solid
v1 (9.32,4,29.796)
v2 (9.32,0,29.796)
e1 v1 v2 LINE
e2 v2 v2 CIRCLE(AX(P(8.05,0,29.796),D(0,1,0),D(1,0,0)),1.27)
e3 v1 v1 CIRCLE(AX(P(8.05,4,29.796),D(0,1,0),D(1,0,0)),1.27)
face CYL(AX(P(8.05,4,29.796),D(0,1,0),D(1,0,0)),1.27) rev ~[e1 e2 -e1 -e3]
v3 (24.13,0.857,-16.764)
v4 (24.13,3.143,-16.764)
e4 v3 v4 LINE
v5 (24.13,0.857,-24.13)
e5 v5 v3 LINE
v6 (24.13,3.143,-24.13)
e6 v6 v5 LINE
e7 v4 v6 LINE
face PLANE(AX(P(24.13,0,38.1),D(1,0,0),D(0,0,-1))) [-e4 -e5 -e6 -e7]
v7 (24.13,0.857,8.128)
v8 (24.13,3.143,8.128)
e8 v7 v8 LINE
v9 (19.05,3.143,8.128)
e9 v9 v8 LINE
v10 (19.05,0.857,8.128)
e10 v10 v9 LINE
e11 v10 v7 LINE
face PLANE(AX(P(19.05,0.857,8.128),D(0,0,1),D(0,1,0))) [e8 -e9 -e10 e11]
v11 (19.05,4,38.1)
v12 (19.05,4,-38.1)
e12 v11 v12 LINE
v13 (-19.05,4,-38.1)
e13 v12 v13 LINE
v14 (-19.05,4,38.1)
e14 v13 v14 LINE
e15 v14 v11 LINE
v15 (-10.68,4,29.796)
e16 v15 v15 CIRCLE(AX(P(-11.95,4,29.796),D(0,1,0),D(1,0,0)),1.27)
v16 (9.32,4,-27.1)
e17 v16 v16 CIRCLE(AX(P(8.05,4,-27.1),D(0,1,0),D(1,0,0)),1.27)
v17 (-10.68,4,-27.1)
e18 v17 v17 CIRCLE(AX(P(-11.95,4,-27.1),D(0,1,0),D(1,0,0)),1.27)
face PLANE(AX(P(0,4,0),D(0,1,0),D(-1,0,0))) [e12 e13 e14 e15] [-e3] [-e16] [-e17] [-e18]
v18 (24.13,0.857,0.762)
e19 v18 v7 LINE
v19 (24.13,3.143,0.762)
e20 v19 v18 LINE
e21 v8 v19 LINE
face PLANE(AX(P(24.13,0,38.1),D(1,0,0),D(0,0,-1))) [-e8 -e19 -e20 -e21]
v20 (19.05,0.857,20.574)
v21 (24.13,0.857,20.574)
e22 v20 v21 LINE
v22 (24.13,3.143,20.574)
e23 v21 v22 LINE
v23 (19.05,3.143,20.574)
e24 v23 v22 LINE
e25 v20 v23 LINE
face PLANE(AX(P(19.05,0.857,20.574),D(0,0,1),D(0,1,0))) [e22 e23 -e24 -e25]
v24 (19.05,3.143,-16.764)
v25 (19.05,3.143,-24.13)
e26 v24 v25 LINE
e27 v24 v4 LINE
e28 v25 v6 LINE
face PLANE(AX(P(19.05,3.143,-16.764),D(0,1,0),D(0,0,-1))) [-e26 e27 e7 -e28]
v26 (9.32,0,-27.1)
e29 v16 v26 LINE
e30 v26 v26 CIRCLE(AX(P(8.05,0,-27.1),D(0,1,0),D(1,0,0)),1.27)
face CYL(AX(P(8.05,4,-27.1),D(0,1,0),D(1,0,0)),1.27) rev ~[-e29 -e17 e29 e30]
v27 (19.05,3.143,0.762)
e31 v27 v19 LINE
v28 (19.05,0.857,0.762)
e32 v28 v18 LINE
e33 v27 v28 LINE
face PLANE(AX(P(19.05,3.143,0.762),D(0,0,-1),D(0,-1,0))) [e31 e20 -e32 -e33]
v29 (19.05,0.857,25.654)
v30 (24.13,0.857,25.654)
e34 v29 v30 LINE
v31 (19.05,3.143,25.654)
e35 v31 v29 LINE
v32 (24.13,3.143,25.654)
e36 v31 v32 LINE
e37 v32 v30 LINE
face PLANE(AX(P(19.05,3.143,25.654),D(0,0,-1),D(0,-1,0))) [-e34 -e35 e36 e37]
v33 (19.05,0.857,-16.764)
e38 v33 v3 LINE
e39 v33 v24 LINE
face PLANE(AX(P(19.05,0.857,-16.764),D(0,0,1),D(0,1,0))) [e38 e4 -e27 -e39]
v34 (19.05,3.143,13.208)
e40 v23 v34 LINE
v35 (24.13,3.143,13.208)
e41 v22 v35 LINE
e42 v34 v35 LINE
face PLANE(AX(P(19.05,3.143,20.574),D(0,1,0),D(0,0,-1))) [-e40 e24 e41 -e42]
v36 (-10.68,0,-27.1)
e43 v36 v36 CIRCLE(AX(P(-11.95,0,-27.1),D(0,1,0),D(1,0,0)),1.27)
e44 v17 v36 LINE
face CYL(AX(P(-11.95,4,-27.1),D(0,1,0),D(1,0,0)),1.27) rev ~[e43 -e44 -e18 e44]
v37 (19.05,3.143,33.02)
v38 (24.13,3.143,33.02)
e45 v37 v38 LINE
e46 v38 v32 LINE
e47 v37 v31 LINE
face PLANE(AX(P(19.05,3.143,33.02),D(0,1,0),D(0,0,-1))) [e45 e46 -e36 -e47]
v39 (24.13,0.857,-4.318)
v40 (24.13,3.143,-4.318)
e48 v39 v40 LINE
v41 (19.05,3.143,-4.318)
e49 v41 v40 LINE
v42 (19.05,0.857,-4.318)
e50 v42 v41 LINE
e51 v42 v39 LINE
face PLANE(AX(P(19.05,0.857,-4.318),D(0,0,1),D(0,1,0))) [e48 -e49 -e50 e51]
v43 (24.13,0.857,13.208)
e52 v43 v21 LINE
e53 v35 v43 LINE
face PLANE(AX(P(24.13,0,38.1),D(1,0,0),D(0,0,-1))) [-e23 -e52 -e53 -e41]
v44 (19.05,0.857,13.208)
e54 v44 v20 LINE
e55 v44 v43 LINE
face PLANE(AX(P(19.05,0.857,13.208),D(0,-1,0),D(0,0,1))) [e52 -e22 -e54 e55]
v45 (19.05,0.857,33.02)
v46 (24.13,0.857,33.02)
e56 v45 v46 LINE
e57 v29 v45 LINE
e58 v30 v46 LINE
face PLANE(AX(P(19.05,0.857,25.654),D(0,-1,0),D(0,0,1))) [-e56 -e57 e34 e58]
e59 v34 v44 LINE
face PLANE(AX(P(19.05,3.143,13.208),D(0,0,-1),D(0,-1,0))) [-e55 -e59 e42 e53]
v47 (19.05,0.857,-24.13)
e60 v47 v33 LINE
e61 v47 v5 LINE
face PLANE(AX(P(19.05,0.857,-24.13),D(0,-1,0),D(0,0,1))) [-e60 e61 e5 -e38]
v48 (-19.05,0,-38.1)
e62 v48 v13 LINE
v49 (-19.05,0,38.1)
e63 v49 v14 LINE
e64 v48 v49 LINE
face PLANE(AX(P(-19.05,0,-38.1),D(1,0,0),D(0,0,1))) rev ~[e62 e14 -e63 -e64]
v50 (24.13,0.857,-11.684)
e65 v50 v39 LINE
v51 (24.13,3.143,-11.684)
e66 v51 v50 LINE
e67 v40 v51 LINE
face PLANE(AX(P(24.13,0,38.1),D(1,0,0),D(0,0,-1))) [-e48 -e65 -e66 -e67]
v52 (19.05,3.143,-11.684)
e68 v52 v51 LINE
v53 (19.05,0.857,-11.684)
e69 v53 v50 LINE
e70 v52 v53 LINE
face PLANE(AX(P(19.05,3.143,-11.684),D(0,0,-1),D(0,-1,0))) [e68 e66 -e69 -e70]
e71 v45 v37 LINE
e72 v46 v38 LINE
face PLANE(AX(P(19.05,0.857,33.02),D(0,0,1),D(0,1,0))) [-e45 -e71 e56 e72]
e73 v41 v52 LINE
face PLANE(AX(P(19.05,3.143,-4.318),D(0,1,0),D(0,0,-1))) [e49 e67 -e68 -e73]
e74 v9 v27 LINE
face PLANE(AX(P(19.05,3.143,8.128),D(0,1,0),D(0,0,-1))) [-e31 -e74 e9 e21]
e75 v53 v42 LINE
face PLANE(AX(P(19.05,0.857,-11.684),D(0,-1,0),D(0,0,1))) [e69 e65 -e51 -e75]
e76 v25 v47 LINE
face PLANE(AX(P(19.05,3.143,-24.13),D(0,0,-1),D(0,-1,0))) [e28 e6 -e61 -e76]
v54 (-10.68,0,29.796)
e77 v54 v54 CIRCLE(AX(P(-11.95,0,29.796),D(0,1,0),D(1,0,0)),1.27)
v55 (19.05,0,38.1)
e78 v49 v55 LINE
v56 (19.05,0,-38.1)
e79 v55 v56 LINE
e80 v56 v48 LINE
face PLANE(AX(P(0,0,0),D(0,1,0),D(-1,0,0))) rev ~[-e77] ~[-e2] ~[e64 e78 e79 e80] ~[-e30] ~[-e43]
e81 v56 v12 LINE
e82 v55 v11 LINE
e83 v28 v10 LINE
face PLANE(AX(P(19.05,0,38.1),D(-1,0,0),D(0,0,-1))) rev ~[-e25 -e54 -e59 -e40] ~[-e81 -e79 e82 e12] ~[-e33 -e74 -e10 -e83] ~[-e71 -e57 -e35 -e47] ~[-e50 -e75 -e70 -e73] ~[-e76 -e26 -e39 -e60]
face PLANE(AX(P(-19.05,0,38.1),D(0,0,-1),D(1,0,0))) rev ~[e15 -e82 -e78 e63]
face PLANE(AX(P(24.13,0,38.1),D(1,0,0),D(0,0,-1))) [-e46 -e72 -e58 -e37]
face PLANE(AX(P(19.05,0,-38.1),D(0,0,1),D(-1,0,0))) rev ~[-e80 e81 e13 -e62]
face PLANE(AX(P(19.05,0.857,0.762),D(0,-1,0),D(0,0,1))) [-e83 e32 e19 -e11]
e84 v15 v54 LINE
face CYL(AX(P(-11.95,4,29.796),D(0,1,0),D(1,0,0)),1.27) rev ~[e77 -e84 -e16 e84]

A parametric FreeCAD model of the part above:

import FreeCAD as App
import Part
import Sketcher
Q = App.Units.Quantity

doc = App.newDocument("Part")
params = doc.addObject("Spreadsheet::Sheet", "Params")
for row, (alias, value) in enumerate([
    ("sketch1_height", "3 in"),
    ("sketch1_width", "1.5 in"),
    ("pad1_length", "4 mm"),
    ("sketch2_width", "0.09 in"),
    ("sketch2_height", "0.29 in"),
    ("pad2_length", "0.2 in"),
    ("sketch3_diameter", "0.1 in"),
    ("pocket1_length", "0.282 in"),
], start=1):
    params.set(f"A{row}", alias)
    params.set(f"B{row}", "=" + value)
    params.setAlias(f"B{row}", alias)

body = doc.addObject("PartDesign::Body", "Body")

sketch1 = body.newObject("Sketcher::SketchObject", "Sketch")
sketch1.AttachmentSupport = (doc.getObject("XZ_Plane"), [""])
sketch1.MapMode = "FlatFace"
sketch1.addGeometry([
    Part.LineSegment(App.Vector(-19, -38, 0), App.Vector(-19, 38, 0)),
    Part.LineSegment(App.Vector(-19, 38, 0), App.Vector(19, 38, 0)),
    Part.LineSegment(App.Vector(19, 38, 0), App.Vector(19, -38, 0)),
    Part.LineSegment(App.Vector(19, -38, 0), App.Vector(-19, -38, 0)),
], False)
sketch1.addConstraint([
    Sketcher.Constraint("Coincident", 0, 2, 1, 1),
    Sketcher.Constraint("Coincident", 1, 2, 2, 1),
    Sketcher.Constraint("Coincident", 2, 2, 3, 1),
    Sketcher.Constraint("Coincident", 3, 2, 0, 1),
    Sketcher.Constraint("Vertical", 0),
    Sketcher.Constraint("Horizontal", 1),
    Sketcher.Constraint("Vertical", 2),
    Sketcher.Constraint("Horizontal", 3),
    Sketcher.Constraint("Symmetric", 0, 2, 2, 2, -1, 1),
    Sketcher.Constraint("DistanceY", 0, 1, 0, 2, Q("3 in")),
    Sketcher.Constraint("DistanceX", 1, 1, 1, 2, Q("1.5 in")),
])
sketch1.setExpression("Constraints[9]", "Params.sketch1_height")
sketch1.setExpression("Constraints[10]", "Params.sketch1_width")
pad1 = body.newObject("PartDesign::Pad", "Pad")
pad1.Profile = sketch1
pad1.setExpression("Length", "Params.pad1_length")
pad1.Reversed = True

sketch2 = body.newObject("Sketcher::SketchObject", "Sketch001")
sketch2.AttachmentSupport = (doc.getObject("YZ_Plane"), [""])
sketch2.MapMode = "FlatFace"
sketch2.AttachmentOffset = App.Placement(App.Vector(0, 0, 0.75 * 25.4), App.Rotation())
sketch2.addGeometry([
    Part.LineSegment(App.Vector(3.1, 25.7, 0), App.Vector(3.1, 33, 0)),
    Part.LineSegment(App.Vector(3.1, 33, 0), App.Vector(0.9, 33, 0)),
    Part.LineSegment(App.Vector(0.9, 33, 0), App.Vector(0.9, 25.7, 0)),
    Part.LineSegment(App.Vector(0.9, 25.7, 0), App.Vector(3.1, 25.7, 0)),
    Part.LineSegment(App.Vector(3.1, 13.2, 0), App.Vector(3.1, 20.6, 0)),
    Part.LineSegment(App.Vector(3.1, 20.6, 0), App.Vector(0.9, 20.6, 0)),
    Part.LineSegment(App.Vector(0.9, 20.6, 0), App.Vector(0.9, 13.2, 0)),
    Part.LineSegment(App.Vector(0.9, 13.2, 0), App.Vector(3.1, 13.2, 0)),
    Part.LineSegment(App.Vector(3.1, 0.8, 0), App.Vector(3.1, 8.1, 0)),
    Part.LineSegment(App.Vector(3.1, 8.1, 0), App.Vector(0.9, 8.1, 0)),
    Part.LineSegment(App.Vector(0.9, 8.1, 0), App.Vector(0.9, 0.8, 0)),
    Part.LineSegment(App.Vector(0.9, 0.8, 0), App.Vector(3.1, 0.8, 0)),
    Part.LineSegment(App.Vector(3.1, -11.7, 0), App.Vector(3.1, -4.3, 0)),
    Part.LineSegment(App.Vector(3.1, -4.3, 0), App.Vector(0.9, -4.3, 0)),
    Part.LineSegment(App.Vector(0.9, -4.3, 0), App.Vector(0.9, -11.7, 0)),
    Part.LineSegment(App.Vector(0.9, -11.7, 0), App.Vector(3.1, -11.7, 0)),
    Part.LineSegment(App.Vector(3.1, -24.1, 0), App.Vector(3.1, -16.8, 0)),
    Part.LineSegment(App.Vector(3.1, -16.8, 0), App.Vector(0.9, -16.8, 0)),
    Part.LineSegment(App.Vector(0.9, -16.8, 0), App.Vector(0.9, -24.1, 0)),
    Part.LineSegment(App.Vector(0.9, -24.1, 0), App.Vector(3.1, -24.1, 0)),
], False)
sketch2.addConstraint([
    Sketcher.Constraint("Coincident", 0, 2, 1, 1),
    Sketcher.Constraint("Coincident", 1, 2, 2, 1),
    Sketcher.Constraint("Coincident", 2, 2, 3, 1),
    Sketcher.Constraint("Coincident", 3, 2, 0, 1),
    Sketcher.Constraint("Coincident", 4, 2, 5, 1),
    Sketcher.Constraint("Coincident", 5, 2, 6, 1),
    Sketcher.Constraint("Coincident", 6, 2, 7, 1),
    Sketcher.Constraint("Coincident", 7, 2, 4, 1),
    Sketcher.Constraint("Coincident", 8, 2, 9, 1),
    Sketcher.Constraint("Coincident", 9, 2, 10, 1),
    Sketcher.Constraint("Coincident", 10, 2, 11, 1),
    Sketcher.Constraint("Coincident", 11, 2, 8, 1),
    Sketcher.Constraint("Coincident", 12, 2, 13, 1),
    Sketcher.Constraint("Coincident", 13, 2, 14, 1),
    Sketcher.Constraint("Coincident", 14, 2, 15, 1),
    Sketcher.Constraint("Coincident", 15, 2, 12, 1),
    Sketcher.Constraint("Coincident", 16, 2, 17, 1),
    Sketcher.Constraint("Coincident", 17, 2, 18, 1),
    Sketcher.Constraint("Coincident", 18, 2, 19, 1),
    Sketcher.Constraint("Coincident", 19, 2, 16, 1),
    Sketcher.Constraint("Vertical", 0),
    Sketcher.Constraint("Horizontal", 1),
    Sketcher.Constraint("Vertical", 2),
    Sketcher.Constraint("Horizontal", 3),
    Sketcher.Constraint("Vertical", 4),
    Sketcher.Constraint("Horizontal", 5),
    Sketcher.Constraint("Vertical", 6),
    Sketcher.Constraint("Horizontal", 7),
    Sketcher.Constraint("Vertical", 8),
    Sketcher.Constraint("Horizontal", 9),
    Sketcher.Constraint("Vertical", 10),
    Sketcher.Constraint("Horizontal", 11),
    Sketcher.Constraint("Vertical", 12),
    Sketcher.Constraint("Horizontal", 13),
    Sketcher.Constraint("Vertical", 14),
    Sketcher.Constraint("Horizontal", 15),
    Sketcher.Constraint("Vertical", 16),
    Sketcher.Constraint("Horizontal", 17),
    Sketcher.Constraint("Vertical", 18),
    Sketcher.Constraint("Horizontal", 19),
    Sketcher.Constraint("Vertical", 3, 2, 4, 2),
    Sketcher.Constraint("Vertical", 2, 2, 5, 2),
    Sketcher.Constraint("Vertical", 7, 2, 8, 2),
    Sketcher.Constraint("Vertical", 6, 2, 9, 2),
    Sketcher.Constraint("Vertical", 11, 2, 12, 2),
    Sketcher.Constraint("Vertical", 10, 2, 13, 2),
    Sketcher.Constraint("Vertical", 15, 2, 16, 2),
    Sketcher.Constraint("Vertical", 14, 2, 17, 2),
    Sketcher.Constraint("Equal", 2, 4),
    Sketcher.Constraint("Equal", 6, 8),
    Sketcher.Constraint("Equal", 10, 12),
    Sketcher.Constraint("Equal", 14, 16),
    Sketcher.Constraint("DistanceX", 1, 2, 1, 1, Q("0.09 in")),
    Sketcher.Constraint("DistanceY", 0, 1, 0, 2, Q("0.29 in")),
    Sketcher.Constraint("DistanceY", 4, 2, 3, 2, Q("0.2 in")),
    Sketcher.Constraint("DistanceY", 8, 2, 7, 2, Q("0.2 in")),
    Sketcher.Constraint("DistanceY", 12, 2, 11, 2, Q("0.2 in")),
    Sketcher.Constraint("DistanceY", 16, 2, 15, 2, Q("0.2 in")),
    Sketcher.Constraint("DistanceY", -1, 1, 0, 2, Q("1.3 in")),
    Sketcher.Constraint("DistanceX", -1, 1, 0, 2, 3.143),
])
sketch2.setExpression("Constraints[52]", "Params.sketch2_width")
sketch2.setExpression("Constraints[53]", "Params.sketch2_height")
pad2 = body.newObject("PartDesign::Pad", "Pad001")
pad2.Profile = sketch2
pad2.setExpression("Length", "Params.pad2_length")

sketch3 = body.newObject("Sketcher::SketchObject", "Sketch002")
sketch3.AttachmentSupport = (doc.getObject("XZ_Plane"), [""])
sketch3.MapMode = "FlatFace"
sketch3.AttachmentOffset = App.Placement(App.Vector(0, 0, -4), App.Rotation())
sketch3.addGeometry([
    Part.Circle(App.Vector(8.1, -27.1, 0), App.Vector(0, 0, 1), 1.3),
    Part.Circle(App.Vector(-11.9, -27.1, 0), App.Vector(0, 0, 1), 1.3),
    Part.Circle(App.Vector(8.1, 29.8, 0), App.Vector(0, 0, 1), 1.3),
    Part.Circle(App.Vector(-11.9, 29.8, 0), App.Vector(0, 0, 1), 1.3),
], False)
sketch3.addConstraint([
    Sketcher.Constraint("Equal", 0, 1),
    Sketcher.Constraint("Equal", 1, 2),
    Sketcher.Constraint("Equal", 2, 3),
    Sketcher.Constraint("Horizontal", 0, 3, 1, 3),
    Sketcher.Constraint("Horizontal", 2, 3, 3, 3),
    Sketcher.Constraint("Vertical", 0, 3, 2, 3),
    Sketcher.Constraint("Vertical", 1, 3, 3, 3),
    Sketcher.Constraint("Diameter", 0, Q("0.1 in")),
    Sketcher.Constraint("DistanceY", 0, 3, 2, 3, Q("2.24 in")),
    Sketcher.Constraint("DistanceX", 1, 3, 0, 3, Q("0.7874 in")),
    Sketcher.Constraint("DistanceX", -1, 1, 0, 3, 8.05),
    Sketcher.Constraint("DistanceY", 0, 3, -1, 1, 27.1),
])
sketch3.setExpression("Constraints[7]", "Params.sketch3_diameter")
pocket1 = body.newObject("PartDesign::Pocket", "Pocket")
pocket1.Profile = sketch3
pocket1.setExpression("Length", "Params.pocket1_length")
pocket1.Reversed = True

doc.recompute()
